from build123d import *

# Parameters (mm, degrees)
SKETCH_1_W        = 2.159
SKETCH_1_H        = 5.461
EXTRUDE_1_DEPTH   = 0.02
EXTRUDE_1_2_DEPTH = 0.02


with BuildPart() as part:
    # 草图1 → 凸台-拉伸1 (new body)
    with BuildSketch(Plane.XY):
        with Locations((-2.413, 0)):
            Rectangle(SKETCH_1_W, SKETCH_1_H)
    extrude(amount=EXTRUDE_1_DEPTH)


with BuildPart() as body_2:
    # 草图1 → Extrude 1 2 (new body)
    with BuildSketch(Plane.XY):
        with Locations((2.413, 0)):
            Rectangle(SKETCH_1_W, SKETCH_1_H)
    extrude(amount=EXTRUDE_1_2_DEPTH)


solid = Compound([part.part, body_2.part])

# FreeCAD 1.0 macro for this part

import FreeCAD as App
import Part
import Sketcher
from FreeCAD import Vector
Q = App.Units.Quantity


def add_polygon(sketch, points):
    """Adds a closed chain of lines whose ends are joined by coincident constraints."""
    first, n = sketch.GeometryCount, len(points)
    for a, b in zip(points, points[1:] + points[:1]):
        sketch.addGeometry(Part.LineSegment(App.Vector(*a, 0), App.Vector(*b, 0)), False)
    for i in range(n):
        sketch.addConstraint(Sketcher.Constraint("Coincident", first + i, 2, first + (i + 1) % n, 1))

doc = App.newDocument("Part")
body = doc.addObject("PartDesign::Body", "Body")

sketch1 = doc.addObject("Sketcher::SketchObject", "Sketch")
body.addObject(sketch1)
sketch1.AttachmentSupport = (doc.XY_Plane, [""])
sketch1.MapMode = "FlatFace"
add_polygon(sketch1, [(-3.4925, 2.7305), (-3.4925, -2.7305), (-1.3335, -2.7305), (-1.3335, 2.7305)])
sketch1.addConstraint([
    Sketcher.Constraint("Vertical", 0),
    Sketcher.Constraint("Horizontal", 1),
    Sketcher.Constraint("Vertical", 2),
    Sketcher.Constraint("Horizontal", 3),
    Sketcher.Constraint("DistanceX", 1, 1, 1, 2, Q("0.085 in")),
    Sketcher.Constraint("DistanceY", 0, 2, 0, 1, Q("0.215 in")),
    Sketcher.Constraint("DistanceX", 0, 2, -1, 1, Q("0.1375 in")),
    Sketcher.Constraint("DistanceY", 0, 2, -1, 1, Q("0.1075 in")),
])
pad1 = doc.addObject("PartDesign::Pad", "Pad")
body.addObject(pad1)
pad1.Profile = sketch1
pad1.Length = 0.02
body2 = doc.addObject("PartDesign::Body", "Body001")

sketch2 = doc.addObject("Sketcher::SketchObject", "Sketch001")
body2.addObject(sketch2)
sketch2.AttachmentSupport = (doc.getObject("XY_Plane001"), [""])
sketch2.MapMode = "FlatFace"
add_polygon(sketch2, [(1.3335, 2.7305), (1.3335, -2.7305), (3.4925, -2.7305), (3.4925, 2.7305)])
sketch2.addConstraint([
    Sketcher.Constraint("Vertical", 0),
    Sketcher.Constraint("Horizontal", 1),
    Sketcher.Constraint("Vertical", 2),
    Sketcher.Constraint("Horizontal", 3),
    Sketcher.Constraint("DistanceX", 1, 1, 1, 2, Q("0.085 in")),
    Sketcher.Constraint("DistanceY", 0, 2, 0, 1, Q("0.215 in")),
    Sketcher.Constraint("DistanceX", -1, 1, 0, 2, Q("0.0525 in")),
    Sketcher.Constraint("DistanceY", 0, 2, -1, 1, Q("0.1075 in")),
])
pad2 = doc.addObject("PartDesign::Pad", "Pad001")
body2.addObject(pad2)
pad2.Profile = sketch2
pad2.Length = 0.02

doc.recompute()
